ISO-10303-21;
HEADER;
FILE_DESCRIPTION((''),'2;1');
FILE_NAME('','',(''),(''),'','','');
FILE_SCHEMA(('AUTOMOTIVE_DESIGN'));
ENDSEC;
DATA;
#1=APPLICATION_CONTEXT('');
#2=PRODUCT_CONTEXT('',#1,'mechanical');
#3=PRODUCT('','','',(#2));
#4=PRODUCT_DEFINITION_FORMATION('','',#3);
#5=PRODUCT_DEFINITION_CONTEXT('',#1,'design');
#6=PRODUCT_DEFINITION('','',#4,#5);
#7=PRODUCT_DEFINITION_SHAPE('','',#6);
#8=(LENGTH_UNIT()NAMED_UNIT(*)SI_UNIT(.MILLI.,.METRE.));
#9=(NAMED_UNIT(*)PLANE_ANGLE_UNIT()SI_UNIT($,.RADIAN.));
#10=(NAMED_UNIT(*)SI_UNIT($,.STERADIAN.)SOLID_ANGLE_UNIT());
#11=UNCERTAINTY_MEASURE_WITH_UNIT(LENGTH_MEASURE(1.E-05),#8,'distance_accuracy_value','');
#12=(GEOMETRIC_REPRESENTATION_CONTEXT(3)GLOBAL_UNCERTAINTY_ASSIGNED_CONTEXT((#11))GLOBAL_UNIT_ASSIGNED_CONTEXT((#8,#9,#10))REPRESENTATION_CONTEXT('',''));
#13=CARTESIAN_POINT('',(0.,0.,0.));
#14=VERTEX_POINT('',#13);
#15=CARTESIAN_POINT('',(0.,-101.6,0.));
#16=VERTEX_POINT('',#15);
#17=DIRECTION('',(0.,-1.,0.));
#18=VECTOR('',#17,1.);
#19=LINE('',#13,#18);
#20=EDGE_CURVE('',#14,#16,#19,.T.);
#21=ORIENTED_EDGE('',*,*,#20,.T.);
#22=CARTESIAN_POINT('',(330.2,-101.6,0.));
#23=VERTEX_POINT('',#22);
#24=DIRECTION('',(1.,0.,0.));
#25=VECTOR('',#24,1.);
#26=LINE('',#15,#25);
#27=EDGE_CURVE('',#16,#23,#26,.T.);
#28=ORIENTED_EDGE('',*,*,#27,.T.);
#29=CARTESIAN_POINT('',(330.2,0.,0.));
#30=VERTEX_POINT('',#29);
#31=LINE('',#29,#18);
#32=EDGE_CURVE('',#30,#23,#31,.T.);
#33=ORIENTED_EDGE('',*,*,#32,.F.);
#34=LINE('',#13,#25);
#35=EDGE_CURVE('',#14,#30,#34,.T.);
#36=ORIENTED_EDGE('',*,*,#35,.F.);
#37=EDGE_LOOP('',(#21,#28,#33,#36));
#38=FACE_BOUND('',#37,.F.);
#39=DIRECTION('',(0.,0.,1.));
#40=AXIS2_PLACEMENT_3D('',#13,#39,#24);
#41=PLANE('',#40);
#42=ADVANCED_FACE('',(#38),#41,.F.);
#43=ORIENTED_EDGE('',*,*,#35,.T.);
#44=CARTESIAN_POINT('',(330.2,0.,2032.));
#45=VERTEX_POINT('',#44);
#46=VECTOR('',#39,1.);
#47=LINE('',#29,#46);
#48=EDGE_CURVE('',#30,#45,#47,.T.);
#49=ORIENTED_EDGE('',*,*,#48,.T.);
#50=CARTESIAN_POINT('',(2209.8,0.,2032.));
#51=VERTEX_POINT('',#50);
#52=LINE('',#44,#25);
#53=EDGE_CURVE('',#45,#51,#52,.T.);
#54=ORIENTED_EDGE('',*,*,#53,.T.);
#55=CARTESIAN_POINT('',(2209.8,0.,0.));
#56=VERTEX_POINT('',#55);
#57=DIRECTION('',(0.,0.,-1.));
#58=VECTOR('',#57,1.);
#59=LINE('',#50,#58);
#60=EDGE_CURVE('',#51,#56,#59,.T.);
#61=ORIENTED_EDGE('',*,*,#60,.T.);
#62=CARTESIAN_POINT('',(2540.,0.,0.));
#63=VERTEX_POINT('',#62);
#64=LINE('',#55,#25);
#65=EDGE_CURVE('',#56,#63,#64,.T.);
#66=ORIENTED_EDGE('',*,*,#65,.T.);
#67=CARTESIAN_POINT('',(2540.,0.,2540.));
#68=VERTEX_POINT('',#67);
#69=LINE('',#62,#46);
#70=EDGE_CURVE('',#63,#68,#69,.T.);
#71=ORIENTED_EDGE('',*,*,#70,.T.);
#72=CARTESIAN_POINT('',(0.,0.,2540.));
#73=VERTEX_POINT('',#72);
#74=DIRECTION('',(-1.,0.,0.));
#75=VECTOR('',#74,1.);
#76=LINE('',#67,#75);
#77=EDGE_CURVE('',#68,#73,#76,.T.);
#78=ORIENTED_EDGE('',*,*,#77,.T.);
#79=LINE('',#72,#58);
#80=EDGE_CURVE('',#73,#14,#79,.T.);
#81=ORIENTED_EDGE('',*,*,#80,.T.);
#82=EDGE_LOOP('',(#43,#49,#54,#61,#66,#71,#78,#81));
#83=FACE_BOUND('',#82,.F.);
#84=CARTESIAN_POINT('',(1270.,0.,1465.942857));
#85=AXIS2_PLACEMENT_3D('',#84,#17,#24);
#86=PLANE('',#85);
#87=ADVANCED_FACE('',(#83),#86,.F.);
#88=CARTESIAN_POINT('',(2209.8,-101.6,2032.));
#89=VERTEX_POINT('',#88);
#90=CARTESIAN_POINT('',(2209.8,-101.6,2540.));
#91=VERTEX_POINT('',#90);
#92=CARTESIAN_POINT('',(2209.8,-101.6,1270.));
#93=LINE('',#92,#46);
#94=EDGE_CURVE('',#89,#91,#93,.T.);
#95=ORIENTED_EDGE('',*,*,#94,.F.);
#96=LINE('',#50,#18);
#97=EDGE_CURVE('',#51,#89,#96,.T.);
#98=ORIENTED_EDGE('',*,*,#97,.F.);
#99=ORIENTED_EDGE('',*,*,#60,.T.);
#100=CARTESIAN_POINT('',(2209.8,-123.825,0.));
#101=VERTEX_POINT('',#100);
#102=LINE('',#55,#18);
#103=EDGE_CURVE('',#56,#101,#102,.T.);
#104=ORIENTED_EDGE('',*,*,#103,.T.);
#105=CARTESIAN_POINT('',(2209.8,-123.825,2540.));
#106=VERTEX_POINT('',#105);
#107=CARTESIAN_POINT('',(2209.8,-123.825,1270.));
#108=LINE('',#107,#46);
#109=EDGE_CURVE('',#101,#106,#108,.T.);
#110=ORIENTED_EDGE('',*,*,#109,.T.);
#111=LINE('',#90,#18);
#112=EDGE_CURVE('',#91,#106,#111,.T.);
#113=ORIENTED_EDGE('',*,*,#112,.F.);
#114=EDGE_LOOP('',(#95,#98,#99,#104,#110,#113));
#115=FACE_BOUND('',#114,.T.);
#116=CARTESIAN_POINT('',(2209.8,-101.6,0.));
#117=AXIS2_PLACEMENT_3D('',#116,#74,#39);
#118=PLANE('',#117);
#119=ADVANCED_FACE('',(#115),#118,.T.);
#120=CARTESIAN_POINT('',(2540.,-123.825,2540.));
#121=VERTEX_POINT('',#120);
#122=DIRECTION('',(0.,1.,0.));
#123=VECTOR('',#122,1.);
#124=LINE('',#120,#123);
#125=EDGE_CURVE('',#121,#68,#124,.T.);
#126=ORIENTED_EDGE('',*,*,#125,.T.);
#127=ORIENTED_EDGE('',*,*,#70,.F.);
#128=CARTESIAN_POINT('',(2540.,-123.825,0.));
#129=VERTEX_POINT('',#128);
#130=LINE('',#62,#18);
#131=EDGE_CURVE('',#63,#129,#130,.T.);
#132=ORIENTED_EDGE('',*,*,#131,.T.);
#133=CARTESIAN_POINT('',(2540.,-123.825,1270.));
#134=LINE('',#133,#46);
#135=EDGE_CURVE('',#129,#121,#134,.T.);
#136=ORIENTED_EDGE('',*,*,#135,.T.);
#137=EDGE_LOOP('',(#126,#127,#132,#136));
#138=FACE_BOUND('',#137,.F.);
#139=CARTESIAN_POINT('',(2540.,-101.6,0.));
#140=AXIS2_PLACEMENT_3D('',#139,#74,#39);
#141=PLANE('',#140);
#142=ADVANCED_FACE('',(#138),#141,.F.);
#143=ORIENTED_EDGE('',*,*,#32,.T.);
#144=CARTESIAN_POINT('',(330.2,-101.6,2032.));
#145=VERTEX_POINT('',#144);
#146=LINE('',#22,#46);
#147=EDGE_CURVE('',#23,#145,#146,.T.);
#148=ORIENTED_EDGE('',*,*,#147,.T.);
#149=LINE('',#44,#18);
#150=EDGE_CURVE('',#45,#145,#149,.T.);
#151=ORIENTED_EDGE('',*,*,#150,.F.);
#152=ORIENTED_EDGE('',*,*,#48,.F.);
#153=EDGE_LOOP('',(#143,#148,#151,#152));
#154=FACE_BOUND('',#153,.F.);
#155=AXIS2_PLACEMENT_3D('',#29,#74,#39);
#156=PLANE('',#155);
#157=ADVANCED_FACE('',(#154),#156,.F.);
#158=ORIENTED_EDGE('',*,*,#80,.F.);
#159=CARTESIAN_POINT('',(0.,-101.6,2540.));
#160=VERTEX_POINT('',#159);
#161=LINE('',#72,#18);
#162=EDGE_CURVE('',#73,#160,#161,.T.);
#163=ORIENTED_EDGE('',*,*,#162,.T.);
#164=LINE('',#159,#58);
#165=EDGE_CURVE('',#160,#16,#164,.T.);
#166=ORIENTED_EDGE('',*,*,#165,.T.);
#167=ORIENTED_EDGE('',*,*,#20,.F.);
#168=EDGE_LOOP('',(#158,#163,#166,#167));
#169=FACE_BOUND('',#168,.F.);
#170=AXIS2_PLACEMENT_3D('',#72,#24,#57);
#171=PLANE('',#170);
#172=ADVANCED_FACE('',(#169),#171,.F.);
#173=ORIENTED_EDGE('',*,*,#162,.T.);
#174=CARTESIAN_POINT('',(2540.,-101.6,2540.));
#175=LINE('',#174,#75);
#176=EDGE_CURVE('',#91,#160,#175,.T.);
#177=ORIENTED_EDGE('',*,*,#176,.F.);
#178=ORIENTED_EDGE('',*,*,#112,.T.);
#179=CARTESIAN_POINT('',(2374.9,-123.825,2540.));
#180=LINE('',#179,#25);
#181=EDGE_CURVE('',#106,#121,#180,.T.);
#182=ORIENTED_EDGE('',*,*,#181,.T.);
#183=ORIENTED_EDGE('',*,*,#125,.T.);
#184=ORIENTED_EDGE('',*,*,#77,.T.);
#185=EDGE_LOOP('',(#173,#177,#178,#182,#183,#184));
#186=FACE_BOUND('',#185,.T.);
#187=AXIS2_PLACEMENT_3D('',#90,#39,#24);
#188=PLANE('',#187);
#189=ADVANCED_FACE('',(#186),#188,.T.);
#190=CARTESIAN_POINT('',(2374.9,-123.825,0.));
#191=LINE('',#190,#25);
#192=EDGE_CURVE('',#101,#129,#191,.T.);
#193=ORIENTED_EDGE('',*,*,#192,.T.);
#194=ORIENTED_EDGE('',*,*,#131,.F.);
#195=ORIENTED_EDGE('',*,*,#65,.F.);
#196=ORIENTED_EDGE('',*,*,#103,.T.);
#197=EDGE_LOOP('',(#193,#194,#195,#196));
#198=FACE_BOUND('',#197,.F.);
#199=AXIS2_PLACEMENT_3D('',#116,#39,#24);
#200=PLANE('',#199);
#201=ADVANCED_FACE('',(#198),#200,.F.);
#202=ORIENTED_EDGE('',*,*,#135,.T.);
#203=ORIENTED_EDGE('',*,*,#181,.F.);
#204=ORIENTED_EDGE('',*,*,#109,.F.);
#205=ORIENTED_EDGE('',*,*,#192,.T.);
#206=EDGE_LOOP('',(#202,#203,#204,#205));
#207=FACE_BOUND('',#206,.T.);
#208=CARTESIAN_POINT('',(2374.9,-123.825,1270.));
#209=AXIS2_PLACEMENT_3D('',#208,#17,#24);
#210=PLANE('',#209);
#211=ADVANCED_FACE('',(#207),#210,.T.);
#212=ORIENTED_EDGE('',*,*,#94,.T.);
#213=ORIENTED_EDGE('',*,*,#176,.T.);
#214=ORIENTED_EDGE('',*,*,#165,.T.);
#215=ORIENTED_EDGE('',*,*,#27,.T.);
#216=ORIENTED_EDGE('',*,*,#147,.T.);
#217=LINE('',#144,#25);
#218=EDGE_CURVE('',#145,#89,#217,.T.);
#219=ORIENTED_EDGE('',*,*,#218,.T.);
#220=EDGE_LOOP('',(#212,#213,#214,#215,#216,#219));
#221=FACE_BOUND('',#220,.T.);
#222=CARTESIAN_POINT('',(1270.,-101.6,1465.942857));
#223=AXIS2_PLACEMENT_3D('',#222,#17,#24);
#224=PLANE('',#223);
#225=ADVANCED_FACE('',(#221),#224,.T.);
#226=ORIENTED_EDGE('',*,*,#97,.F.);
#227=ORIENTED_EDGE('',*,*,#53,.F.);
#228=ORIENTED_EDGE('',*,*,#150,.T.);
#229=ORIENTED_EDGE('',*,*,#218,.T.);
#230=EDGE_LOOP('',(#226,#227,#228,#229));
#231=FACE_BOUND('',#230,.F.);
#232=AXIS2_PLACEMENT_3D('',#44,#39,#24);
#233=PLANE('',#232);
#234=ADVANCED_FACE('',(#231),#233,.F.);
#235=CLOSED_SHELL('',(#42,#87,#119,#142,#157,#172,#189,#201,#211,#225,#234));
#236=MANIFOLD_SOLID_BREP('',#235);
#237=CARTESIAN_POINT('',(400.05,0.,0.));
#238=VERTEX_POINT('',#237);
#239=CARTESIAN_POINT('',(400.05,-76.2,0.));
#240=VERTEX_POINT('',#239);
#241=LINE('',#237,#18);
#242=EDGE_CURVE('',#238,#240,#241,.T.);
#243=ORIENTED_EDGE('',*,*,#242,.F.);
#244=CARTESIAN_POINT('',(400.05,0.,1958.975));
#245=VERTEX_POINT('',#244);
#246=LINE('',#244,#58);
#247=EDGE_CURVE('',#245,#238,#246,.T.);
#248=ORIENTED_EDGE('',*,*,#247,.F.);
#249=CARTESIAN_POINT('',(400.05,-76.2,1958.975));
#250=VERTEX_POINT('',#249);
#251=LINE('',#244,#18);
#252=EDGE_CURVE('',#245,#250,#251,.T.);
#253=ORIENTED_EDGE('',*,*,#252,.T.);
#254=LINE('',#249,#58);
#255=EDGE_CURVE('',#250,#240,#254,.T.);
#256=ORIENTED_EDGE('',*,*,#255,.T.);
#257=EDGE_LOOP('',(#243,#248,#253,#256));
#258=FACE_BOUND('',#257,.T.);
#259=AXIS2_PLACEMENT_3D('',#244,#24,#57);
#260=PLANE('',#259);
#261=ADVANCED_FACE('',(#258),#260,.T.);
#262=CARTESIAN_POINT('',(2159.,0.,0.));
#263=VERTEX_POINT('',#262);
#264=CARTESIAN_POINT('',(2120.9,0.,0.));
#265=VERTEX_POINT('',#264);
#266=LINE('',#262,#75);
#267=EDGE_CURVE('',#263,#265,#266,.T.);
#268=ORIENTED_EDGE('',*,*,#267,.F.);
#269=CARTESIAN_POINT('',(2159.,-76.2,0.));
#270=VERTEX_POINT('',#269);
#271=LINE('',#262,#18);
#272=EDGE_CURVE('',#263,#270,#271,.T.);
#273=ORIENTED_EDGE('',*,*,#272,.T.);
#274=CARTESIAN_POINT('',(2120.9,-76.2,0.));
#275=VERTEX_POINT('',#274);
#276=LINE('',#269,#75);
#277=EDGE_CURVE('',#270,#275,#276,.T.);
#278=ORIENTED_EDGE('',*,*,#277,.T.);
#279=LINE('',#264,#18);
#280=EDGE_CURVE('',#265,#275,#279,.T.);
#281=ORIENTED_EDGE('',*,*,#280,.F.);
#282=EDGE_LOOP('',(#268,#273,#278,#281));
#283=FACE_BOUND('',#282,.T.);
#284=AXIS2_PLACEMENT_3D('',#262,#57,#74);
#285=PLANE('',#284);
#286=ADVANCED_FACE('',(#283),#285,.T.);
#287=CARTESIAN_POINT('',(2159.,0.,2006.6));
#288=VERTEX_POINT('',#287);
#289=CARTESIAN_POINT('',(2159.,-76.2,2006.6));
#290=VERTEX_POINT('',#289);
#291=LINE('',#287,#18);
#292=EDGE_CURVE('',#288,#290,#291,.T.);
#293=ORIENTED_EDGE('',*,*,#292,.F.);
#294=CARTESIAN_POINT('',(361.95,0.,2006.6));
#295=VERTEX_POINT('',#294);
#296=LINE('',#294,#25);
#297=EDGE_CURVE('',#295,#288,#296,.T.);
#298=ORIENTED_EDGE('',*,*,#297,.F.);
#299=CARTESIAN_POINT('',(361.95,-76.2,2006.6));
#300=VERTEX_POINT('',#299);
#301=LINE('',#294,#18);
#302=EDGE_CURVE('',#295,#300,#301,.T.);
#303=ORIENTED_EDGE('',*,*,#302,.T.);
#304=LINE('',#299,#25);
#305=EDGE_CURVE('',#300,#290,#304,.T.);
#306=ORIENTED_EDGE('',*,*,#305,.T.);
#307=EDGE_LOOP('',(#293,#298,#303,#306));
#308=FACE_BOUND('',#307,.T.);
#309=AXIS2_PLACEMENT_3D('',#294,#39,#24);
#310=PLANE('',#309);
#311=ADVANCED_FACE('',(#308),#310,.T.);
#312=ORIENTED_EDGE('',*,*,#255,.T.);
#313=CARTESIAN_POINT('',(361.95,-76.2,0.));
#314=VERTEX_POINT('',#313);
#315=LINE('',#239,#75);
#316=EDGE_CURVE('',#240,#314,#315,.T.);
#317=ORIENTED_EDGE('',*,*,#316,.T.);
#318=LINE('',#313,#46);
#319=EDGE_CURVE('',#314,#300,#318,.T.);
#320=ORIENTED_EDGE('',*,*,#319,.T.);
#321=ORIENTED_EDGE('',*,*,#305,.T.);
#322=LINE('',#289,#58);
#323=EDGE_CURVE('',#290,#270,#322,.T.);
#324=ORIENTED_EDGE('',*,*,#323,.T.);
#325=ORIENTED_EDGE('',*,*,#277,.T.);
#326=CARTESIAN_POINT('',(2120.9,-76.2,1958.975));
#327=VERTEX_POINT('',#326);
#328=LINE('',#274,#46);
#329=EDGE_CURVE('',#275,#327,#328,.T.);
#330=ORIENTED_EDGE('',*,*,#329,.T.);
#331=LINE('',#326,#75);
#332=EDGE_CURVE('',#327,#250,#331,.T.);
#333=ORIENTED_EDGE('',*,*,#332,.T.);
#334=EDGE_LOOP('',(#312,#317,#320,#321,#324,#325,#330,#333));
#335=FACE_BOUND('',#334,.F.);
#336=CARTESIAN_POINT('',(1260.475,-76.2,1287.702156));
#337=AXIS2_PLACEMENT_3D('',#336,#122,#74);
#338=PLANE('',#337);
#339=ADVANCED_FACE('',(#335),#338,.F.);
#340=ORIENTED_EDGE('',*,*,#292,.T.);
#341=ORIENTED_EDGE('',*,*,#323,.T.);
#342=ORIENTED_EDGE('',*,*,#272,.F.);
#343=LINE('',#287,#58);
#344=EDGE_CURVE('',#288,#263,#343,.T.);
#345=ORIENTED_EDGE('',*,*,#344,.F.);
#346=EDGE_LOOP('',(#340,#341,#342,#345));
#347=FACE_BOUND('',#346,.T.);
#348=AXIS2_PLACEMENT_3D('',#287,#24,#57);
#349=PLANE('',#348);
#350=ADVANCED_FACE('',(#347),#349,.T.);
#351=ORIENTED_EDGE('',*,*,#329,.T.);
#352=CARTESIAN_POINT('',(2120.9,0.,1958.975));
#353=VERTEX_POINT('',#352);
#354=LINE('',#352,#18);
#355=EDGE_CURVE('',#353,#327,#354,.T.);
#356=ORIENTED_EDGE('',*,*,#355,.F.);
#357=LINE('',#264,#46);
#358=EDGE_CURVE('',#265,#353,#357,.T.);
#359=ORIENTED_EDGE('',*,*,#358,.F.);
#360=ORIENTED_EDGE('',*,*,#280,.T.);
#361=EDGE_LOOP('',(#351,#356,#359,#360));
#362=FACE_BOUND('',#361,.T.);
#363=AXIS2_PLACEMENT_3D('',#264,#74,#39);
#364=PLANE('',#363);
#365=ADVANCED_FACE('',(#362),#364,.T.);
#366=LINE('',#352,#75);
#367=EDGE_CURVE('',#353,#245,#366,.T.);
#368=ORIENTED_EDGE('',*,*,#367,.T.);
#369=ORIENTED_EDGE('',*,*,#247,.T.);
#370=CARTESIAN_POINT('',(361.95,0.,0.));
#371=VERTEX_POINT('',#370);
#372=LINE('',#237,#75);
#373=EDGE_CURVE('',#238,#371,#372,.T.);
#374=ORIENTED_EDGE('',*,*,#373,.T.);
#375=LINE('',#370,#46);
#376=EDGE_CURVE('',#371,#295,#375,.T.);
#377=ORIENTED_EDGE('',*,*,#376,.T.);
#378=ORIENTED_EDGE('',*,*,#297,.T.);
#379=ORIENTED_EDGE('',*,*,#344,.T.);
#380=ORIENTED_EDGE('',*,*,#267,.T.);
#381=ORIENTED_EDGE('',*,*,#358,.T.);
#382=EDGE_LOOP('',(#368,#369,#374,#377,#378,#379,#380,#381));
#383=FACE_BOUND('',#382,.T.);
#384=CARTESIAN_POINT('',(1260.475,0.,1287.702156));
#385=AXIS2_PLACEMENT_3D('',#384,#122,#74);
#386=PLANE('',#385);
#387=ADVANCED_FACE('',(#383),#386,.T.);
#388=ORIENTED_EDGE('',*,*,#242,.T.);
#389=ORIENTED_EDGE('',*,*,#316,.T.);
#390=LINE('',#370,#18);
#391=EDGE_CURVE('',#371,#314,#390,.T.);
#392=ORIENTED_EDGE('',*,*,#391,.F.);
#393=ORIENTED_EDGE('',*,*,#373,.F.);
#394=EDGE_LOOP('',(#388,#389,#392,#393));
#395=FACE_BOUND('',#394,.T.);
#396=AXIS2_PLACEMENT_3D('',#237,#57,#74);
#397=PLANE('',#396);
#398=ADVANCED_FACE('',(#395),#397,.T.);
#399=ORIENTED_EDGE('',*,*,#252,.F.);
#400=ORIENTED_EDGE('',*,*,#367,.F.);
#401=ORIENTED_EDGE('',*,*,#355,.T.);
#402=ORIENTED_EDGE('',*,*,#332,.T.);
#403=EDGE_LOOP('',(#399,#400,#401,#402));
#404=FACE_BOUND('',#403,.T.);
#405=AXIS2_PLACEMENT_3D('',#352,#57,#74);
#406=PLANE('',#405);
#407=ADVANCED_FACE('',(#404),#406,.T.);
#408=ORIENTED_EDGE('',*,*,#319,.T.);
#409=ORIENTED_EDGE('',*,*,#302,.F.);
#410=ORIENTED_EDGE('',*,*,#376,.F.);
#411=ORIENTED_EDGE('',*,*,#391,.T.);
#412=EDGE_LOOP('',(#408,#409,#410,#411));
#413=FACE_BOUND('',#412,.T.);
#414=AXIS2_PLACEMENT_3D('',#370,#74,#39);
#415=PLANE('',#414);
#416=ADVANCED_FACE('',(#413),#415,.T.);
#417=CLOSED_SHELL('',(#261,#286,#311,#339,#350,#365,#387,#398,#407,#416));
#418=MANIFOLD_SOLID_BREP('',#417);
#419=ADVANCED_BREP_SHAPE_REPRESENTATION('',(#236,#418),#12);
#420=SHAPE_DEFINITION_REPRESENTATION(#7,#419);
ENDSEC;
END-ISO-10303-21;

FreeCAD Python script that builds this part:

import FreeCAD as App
import Part
import Sketcher

V = App.Vector
Q = App.Units.Quantity

doc = App.newDocument("Part")
body = doc.addObject("PartDesign::Body", "Body")

sketch1 = doc.addObject("Sketcher::SketchObject", "Sketch")
body.addObject(sketch1)
sketch1.AttachmentSupport = (doc.XZ_Plane, [""])
sketch1.MapMode = "FlatFace"
sketch1.addGeometry([
    Part.LineSegment(V(0, 2540, 0), V(0, 0, 0)),
    Part.LineSegment(V(0, 0, 0), V(330, 0, 0)),
    Part.LineSegment(V(330, 0, 0), V(330, 2032, 0)),
    Part.LineSegment(V(330, 2032, 0), V(2210, 2032, 0)),
    Part.LineSegment(V(2210, 2032, 0), V(2210, 0, 0)),
    Part.LineSegment(V(2210, 0, 0), V(2540, 0, 0)),
    Part.LineSegment(V(2540, 0, 0), V(2540, 2540, 0)),
    Part.LineSegment(V(2540, 2540, 0), V(0, 2540, 0)),
], False)
sketch1.addConstraint([
    Sketcher.Constraint("Coincident", 0, 2, 1, 1),
    Sketcher.Constraint("Coincident", 1, 2, 2, 1),
    Sketcher.Constraint("Coincident", 2, 2, 3, 1),
    Sketcher.Constraint("Coincident", 3, 2, 4, 1),
    Sketcher.Constraint("Coincident", 4, 2, 5, 1),
    Sketcher.Constraint("Coincident", 5, 2, 6, 1),
    Sketcher.Constraint("Coincident", 6, 2, 7, 1),
    Sketcher.Constraint("Coincident", 7, 2, 0, 1),
    Sketcher.Constraint("Vertical", 0),
    Sketcher.Constraint("Horizontal", 1),
    Sketcher.Constraint("Vertical", 2),
    Sketcher.Constraint("Horizontal", 3),
    Sketcher.Constraint("Vertical", 4),
    Sketcher.Constraint("Horizontal", 5),
    Sketcher.Constraint("Vertical", 6),
    Sketcher.Constraint("Horizontal", 7),
    Sketcher.Constraint("Coincident", 0, 2, -1, 1),
    Sketcher.Constraint("PointOnObject", 4, 2, -1),
    Sketcher.Constraint("Equal", 1, 5),
    Sketcher.Constraint("Equal", 7, 0),
    Sketcher.Constraint("DistanceX", 1, 1, 1, 2, Q("13 in")),
    Sketcher.Constraint("DistanceX", 3, 1, 3, 2, Q("74 in")),
    Sketcher.Constraint("DistanceY", 2, 1, 2, 2, Q("80 in")),
])
pad1 = doc.addObject("PartDesign::Pad", "Pad")
body.addObject(pad1)
pad1.Profile = sketch1
pad1.Length = Q("4 in")

sketch2 = doc.addObject("Sketcher::SketchObject", "Sketch001")
body.addObject(sketch2)
sketch2.AttachmentSupport = (doc.XZ_Plane, [""])
sketch2.MapMode = "FlatFace"
sketch2.AttachmentOffset = App.Placement(V(0, 0, 4 * 25.4), App.Rotation())
sketch2.addGeometry([
    Part.LineSegment(V(2210, 2540, 0), V(2210, 0, 0)),
    Part.LineSegment(V(2210, 0, 0), V(2540, 0, 0)),
    Part.LineSegment(V(2540, 0, 0), V(2540, 2540, 0)),
    Part.LineSegment(V(2540, 2540, 0), V(2210, 2540, 0)),
], False)
sketch2.addConstraint([
    Sketcher.Constraint("Coincident", 0, 2, 1, 1),
    Sketcher.Constraint("Coincident", 1, 2, 2, 1),
    Sketcher.Constraint("Coincident", 2, 2, 3, 1),
    Sketcher.Constraint("Coincident", 3, 2, 0, 1),
    Sketcher.Constraint("Vertical", 0),
    Sketcher.Constraint("Horizontal", 1),
    Sketcher.Constraint("Vertical", 2),
    Sketcher.Constraint("Horizontal", 3),
    Sketcher.Constraint("PointOnObject", 0, 2, -1),
    Sketcher.Constraint("DistanceX", 1, 1, 1, 2, Q("13 in")),
    Sketcher.Constraint("DistanceY", 0, 2, 0, 1, Q("100 in")),
    Sketcher.Constraint("DistanceX", -1, 1, 0, 2, Q("87 in")),
])
pad2 = doc.addObject("PartDesign::Pad", "Pad001")
body.addObject(pad2)
pad2.Profile = sketch2
pad2.Length = Q("0.875 in")
body2 = doc.addObject("PartDesign::Body", "Body001")

sketch3 = doc.addObject("Sketcher::SketchObject", "Sketch002")
body2.addObject(sketch3)
sketch3.AttachmentSupport = (doc.getObject("XZ_Plane001"), [""])
sketch3.MapMode = "FlatFace"
sketch3.addGeometry([
    Part.LineSegment(V(2159, 2007, 0), V(2159, 0, 0)),
    Part.LineSegment(V(2159, 0, 0), V(2121, 0, 0)),
    Part.LineSegment(V(2121, 0, 0), V(2121, 1959, 0)),
    Part.LineSegment(V(2121, 1959, 0), V(400, 1959, 0)),
    Part.LineSegment(V(400, 1959, 0), V(400, 0, 0)),
    Part.LineSegment(V(400, 0, 0), V(362, 0, 0)),
    Part.LineSegment(V(362, 0, 0), V(362, 2007, 0)),
    Part.LineSegment(V(362, 2007, 0), V(2159, 2007, 0)),
], False)
sketch3.addConstraint([
    Sketcher.Constraint("Coincident", 0, 2, 1, 1),
    Sketcher.Constraint("Coincident", 1, 2, 2, 1),
    Sketcher.Constraint("Coincident", 2, 2, 3, 1),
    Sketcher.Constraint("Coincident", 3, 2, 4, 1),
    Sketcher.Constraint("Coincident", 4, 2, 5, 1),
    Sketcher.Constraint("Coincident", 5, 2, 6, 1),
    Sketcher.Constraint("Coincident", 6, 2, 7, 1),
    Sketcher.Constraint("Coincident", 7, 2, 0, 1),
    Sketcher.Constraint("Vertical", 0),
    Sketcher.Constraint("Horizontal", 1),
    Sketcher.Constraint("Vertical", 2),
    Sketcher.Constraint("Horizontal", 3),
    Sketcher.Constraint("Vertical", 4),
    Sketcher.Constraint("Horizontal", 5),
    Sketcher.Constraint("Vertical", 6),
    Sketcher.Constraint("Horizontal", 7),
    Sketcher.Constraint("PointOnObject", 0, 2, -1),
    Sketcher.Constraint("PointOnObject", 4, 2, -1),
    Sketcher.Constraint("Equal", 1, 5),
    Sketcher.Constraint("DistanceY", 0, 2, 0, 1, Q("79 in")),
    Sketcher.Constraint("DistanceX", 1, 2, 1, 1, Q("1.5 in")),
    Sketcher.Constraint("DistanceX", -1, 1, 0, 2, Q("85 in")),
    Sketcher.Constraint("DistanceX", 3, 2, 3, 1, Q("67.75 in")),
    Sketcher.Constraint("DistanceY", 2, 1, 2, 2, Q("77.125 in")),
])
pad3 = doc.addObject("PartDesign::Pad", "Pad002")
body2.addObject(pad3)
pad3.Profile = sketch3
pad3.Length = Q("3 in")

doc.recompute()
